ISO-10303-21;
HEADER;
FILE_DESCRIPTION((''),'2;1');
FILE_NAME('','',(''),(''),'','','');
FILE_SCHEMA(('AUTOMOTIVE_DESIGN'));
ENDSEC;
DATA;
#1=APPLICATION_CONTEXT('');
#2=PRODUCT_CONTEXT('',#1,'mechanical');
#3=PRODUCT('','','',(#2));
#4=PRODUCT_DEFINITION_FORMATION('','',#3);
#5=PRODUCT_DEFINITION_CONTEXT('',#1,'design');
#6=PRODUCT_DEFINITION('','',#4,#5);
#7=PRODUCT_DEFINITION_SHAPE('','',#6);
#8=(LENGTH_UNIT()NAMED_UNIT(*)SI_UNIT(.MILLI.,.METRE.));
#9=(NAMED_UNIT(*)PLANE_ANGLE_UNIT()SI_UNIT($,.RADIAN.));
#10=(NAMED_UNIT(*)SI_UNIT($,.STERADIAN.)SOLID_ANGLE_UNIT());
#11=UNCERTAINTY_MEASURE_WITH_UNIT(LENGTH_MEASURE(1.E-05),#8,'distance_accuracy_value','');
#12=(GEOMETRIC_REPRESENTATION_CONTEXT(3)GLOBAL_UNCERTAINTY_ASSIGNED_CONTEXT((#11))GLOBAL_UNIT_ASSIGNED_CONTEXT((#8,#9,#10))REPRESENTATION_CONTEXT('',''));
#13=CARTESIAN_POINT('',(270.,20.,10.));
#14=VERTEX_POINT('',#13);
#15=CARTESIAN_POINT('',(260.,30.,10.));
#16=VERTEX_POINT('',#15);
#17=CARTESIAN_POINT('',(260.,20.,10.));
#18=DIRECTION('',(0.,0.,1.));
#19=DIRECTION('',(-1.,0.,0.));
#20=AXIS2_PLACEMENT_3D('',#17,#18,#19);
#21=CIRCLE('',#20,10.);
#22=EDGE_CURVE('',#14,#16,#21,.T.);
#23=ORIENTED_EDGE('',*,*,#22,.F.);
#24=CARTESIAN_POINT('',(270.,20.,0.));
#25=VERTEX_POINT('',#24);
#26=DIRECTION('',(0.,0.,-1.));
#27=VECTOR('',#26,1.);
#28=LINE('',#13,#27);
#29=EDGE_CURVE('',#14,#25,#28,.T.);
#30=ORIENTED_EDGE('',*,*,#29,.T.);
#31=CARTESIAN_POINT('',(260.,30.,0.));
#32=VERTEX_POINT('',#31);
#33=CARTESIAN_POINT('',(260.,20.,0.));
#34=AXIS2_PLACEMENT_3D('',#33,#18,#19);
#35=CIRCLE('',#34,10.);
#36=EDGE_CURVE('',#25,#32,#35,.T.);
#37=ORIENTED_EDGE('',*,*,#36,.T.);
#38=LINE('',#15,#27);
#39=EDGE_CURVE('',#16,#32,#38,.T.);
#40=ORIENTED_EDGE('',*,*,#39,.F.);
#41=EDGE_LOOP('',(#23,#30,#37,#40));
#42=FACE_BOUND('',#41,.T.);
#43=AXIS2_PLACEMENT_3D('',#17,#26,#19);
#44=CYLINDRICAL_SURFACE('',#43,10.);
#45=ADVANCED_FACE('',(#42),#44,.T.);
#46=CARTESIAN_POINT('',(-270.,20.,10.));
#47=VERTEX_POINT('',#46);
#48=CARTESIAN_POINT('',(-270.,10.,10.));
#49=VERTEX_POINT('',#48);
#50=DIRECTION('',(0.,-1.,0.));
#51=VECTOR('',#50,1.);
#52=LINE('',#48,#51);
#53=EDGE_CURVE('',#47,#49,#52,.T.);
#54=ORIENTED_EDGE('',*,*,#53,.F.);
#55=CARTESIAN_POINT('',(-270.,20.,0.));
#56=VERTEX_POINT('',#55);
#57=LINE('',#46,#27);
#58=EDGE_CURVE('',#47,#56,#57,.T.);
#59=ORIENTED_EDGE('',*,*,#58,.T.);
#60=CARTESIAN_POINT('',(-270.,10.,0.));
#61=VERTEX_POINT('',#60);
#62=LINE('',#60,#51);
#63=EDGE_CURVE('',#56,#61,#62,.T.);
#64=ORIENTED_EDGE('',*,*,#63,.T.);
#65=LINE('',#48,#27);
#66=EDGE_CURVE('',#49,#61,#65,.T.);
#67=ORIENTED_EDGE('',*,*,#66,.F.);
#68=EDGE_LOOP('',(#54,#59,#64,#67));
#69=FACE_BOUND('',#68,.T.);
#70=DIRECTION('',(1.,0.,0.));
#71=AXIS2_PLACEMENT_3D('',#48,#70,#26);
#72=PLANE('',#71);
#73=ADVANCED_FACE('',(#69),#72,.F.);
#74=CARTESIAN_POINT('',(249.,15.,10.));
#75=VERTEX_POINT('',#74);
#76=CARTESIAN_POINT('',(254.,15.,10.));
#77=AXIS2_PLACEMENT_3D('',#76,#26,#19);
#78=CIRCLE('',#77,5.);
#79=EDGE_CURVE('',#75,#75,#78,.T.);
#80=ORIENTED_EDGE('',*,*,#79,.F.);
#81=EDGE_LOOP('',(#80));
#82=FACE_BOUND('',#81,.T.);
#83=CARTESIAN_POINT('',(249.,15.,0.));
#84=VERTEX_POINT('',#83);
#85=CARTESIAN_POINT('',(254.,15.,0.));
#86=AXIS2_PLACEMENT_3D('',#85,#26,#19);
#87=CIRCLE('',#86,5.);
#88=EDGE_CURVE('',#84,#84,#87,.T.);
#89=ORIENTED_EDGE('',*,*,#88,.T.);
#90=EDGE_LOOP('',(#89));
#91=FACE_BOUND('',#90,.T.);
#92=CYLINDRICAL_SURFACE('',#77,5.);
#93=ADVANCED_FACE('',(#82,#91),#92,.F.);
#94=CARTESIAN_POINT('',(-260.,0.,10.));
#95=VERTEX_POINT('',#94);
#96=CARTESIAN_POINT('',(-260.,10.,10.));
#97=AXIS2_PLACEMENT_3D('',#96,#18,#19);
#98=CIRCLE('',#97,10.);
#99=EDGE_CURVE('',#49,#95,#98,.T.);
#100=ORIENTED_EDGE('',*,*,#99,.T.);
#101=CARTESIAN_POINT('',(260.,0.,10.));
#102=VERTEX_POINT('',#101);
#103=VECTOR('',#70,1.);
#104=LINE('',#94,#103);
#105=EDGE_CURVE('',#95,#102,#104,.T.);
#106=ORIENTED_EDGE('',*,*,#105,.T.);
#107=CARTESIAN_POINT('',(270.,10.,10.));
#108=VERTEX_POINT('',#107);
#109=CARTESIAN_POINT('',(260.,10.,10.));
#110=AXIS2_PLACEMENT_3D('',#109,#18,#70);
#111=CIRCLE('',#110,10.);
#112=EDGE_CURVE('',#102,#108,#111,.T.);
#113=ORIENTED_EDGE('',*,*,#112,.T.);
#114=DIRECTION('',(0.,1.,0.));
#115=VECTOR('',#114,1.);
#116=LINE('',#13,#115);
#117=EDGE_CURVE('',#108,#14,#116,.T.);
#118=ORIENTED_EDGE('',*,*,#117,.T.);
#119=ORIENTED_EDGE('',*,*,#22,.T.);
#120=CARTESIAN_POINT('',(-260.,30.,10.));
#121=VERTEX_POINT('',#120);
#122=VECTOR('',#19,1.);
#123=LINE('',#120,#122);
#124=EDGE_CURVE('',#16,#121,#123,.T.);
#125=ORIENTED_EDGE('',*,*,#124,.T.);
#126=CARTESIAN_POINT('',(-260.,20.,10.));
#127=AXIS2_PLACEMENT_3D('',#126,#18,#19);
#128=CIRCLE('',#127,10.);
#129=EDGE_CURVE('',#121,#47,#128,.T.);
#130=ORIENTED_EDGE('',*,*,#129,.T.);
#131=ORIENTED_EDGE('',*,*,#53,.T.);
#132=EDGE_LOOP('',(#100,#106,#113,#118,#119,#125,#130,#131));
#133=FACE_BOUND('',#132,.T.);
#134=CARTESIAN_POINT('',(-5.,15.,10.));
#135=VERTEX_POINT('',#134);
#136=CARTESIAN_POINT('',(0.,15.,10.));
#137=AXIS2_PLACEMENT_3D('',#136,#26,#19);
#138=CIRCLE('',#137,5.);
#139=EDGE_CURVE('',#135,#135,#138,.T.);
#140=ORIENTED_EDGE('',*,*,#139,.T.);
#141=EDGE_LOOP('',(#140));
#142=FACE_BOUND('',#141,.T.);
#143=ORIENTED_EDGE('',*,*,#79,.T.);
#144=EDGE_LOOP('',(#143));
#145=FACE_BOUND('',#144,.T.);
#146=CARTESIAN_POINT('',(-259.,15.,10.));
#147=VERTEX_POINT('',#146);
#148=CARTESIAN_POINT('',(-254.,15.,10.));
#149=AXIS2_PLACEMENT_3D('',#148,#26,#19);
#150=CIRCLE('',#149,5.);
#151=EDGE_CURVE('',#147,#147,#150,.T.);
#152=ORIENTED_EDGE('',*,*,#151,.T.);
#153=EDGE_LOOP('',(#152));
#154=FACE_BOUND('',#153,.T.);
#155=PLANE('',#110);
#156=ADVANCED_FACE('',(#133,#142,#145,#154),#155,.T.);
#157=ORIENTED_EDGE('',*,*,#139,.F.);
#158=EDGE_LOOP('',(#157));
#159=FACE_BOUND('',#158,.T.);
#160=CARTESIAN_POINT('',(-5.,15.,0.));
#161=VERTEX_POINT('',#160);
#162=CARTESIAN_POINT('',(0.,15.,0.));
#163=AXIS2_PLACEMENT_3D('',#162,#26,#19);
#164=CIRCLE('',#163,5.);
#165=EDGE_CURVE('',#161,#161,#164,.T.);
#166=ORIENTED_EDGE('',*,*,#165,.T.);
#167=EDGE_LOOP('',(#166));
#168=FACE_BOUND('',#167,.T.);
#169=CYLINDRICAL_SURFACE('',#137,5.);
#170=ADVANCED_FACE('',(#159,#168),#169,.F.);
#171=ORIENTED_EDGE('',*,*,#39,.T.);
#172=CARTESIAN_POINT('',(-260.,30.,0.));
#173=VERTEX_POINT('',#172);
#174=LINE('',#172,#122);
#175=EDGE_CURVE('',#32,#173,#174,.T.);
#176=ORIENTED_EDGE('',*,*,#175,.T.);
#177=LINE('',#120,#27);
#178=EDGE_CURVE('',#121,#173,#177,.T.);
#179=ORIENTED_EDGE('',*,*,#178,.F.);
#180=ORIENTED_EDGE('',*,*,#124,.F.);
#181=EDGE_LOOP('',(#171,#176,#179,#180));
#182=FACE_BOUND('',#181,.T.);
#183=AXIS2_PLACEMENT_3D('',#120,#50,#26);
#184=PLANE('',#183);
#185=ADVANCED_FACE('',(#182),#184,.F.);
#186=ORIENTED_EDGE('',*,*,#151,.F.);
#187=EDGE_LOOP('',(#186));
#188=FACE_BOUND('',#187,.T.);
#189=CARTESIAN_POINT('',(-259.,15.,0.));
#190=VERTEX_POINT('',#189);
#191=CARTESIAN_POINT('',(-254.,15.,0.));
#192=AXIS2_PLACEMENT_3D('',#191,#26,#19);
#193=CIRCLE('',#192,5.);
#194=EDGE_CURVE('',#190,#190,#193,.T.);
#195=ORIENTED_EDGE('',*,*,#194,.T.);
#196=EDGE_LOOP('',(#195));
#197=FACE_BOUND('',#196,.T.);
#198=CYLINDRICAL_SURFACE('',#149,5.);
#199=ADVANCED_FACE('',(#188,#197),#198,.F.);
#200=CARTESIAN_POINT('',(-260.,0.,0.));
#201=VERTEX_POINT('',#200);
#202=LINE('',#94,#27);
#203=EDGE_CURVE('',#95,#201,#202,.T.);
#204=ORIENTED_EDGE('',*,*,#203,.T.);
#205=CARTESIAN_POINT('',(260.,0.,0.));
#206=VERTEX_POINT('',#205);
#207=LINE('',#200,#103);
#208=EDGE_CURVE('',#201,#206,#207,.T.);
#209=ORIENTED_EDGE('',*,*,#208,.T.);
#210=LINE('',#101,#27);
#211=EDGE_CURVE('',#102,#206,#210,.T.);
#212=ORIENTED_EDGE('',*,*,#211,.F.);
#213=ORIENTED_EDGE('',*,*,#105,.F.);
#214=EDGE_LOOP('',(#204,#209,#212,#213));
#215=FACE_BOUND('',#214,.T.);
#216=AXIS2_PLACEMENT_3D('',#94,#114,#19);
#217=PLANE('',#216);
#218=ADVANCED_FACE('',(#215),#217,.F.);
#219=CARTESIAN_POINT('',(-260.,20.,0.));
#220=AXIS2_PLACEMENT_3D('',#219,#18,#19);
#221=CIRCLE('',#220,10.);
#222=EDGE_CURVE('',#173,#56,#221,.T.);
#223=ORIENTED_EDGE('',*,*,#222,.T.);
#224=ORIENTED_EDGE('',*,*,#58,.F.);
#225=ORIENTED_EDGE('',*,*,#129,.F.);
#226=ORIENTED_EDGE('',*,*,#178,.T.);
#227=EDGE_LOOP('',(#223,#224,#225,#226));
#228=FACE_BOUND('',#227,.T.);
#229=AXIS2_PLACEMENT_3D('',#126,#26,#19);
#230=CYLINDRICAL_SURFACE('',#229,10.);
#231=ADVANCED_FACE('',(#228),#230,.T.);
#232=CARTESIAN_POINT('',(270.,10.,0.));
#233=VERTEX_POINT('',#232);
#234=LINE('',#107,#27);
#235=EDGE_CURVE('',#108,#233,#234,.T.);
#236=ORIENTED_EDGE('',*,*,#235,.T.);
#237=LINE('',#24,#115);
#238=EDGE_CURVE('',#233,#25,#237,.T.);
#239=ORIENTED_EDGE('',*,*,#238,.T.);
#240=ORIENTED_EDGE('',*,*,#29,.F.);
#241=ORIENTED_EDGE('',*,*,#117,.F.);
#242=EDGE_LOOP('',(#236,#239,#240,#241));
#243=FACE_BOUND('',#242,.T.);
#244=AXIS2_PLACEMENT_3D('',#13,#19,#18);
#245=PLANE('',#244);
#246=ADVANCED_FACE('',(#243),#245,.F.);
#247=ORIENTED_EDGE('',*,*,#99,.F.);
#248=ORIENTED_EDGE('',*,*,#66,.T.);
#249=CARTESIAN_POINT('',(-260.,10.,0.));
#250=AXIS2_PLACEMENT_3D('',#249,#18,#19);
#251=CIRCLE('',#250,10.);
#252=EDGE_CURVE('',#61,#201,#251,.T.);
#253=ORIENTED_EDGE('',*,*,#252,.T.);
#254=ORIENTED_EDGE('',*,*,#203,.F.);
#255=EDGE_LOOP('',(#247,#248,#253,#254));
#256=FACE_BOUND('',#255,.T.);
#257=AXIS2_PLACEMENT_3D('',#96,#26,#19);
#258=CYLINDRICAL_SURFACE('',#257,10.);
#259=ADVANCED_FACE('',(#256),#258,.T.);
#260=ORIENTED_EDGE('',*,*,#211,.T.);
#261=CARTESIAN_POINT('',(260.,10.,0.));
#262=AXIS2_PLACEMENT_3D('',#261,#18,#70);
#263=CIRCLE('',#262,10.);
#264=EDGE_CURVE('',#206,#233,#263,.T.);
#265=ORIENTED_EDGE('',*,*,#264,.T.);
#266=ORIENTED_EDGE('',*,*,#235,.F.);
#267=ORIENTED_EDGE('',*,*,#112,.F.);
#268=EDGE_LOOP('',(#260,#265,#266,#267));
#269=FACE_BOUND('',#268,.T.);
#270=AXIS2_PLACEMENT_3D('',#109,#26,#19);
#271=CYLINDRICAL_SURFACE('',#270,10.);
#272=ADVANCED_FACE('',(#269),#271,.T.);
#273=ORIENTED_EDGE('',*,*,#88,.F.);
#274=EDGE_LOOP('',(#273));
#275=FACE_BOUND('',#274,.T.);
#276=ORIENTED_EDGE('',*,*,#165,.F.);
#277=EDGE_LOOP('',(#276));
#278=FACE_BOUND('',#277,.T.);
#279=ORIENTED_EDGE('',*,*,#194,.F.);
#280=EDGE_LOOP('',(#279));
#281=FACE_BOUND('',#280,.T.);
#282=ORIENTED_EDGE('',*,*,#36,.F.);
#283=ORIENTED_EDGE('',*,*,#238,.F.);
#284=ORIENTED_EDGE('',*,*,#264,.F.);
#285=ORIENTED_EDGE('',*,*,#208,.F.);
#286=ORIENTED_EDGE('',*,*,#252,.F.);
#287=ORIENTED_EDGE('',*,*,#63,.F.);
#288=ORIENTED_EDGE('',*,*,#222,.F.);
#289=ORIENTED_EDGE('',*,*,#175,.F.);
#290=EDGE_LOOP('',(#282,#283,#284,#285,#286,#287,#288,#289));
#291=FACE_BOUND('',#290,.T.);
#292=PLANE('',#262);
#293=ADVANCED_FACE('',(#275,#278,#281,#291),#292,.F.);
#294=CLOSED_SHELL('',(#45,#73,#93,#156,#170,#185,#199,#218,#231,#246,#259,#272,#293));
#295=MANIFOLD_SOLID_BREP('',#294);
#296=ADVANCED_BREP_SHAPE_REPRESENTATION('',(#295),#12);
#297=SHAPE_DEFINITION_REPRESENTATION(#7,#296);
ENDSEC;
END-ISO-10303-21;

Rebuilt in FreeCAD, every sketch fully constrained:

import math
import FreeCAD as App
import Part
import Sketcher
Q = App.Units.Quantity

doc = App.newDocument("Part")
body = doc.addObject("PartDesign::Body", "Body")

# Sketch on XY plane
sketch1 = body.newObject("Sketcher::SketchObject", "Sketch")
sketch1.AttachmentSupport = (doc.getObject("XY_Plane"), [""])
sketch1.MapMode = "FlatFace"
sketch1.addGeometry([
    Part.LineSegment(App.Vector(-260, 0, 0), App.Vector(260, 0, 0)),  # 0
    Part.ArcOfCircle(Part.Circle(App.Vector(260, 10, 0), App.Vector(0, 0, 1), 10), math.radians(-90), math.radians(0)),  # 1
    Part.LineSegment(App.Vector(270, 10, 0), App.Vector(270, 20, 0)),  # 2
    Part.ArcOfCircle(Part.Circle(App.Vector(260, 20, 0), App.Vector(0, 0, 1), 10), math.radians(0), math.radians(90)),  # 3
    Part.LineSegment(App.Vector(260, 30, 0), App.Vector(-260, 30, 0)),  # 4
    Part.ArcOfCircle(Part.Circle(App.Vector(-260, 20, 0), App.Vector(0, 0, 1), 10), math.radians(90), math.radians(180)),  # 5
    Part.LineSegment(App.Vector(-270, 20, 0), App.Vector(-270, 10, 0)),  # 6
    Part.ArcOfCircle(Part.Circle(App.Vector(-260, 10, 0), App.Vector(0, 0, 1), 10), math.radians(180), math.radians(270)),  # 7
], False)
sketch1.addConstraint([
    Sketcher.Constraint("Tangent", 0, 2, 1, 1),
    Sketcher.Constraint("Tangent", 1, 2, 2, 1),
    Sketcher.Constraint("Tangent", 2, 2, 3, 1),
    Sketcher.Constraint("Tangent", 3, 2, 4, 1),
    Sketcher.Constraint("Tangent", 4, 2, 5, 1),
    Sketcher.Constraint("Tangent", 5, 2, 6, 1),
    Sketcher.Constraint("Tangent", 6, 2, 7, 1),
    Sketcher.Constraint("Tangent", 7, 2, 0, 1),
    Sketcher.Constraint("Horizontal", 0),
    Sketcher.Constraint("Vertical", 2),
    Sketcher.Constraint("Horizontal", 4),
    Sketcher.Constraint("Vertical", 6),
    Sketcher.Constraint("Equal", 1, 3),
    Sketcher.Constraint("Equal", 3, 5),
    Sketcher.Constraint("Equal", 5, 7),
    Sketcher.Constraint("Symmetric", 0, 2, 7, 2, -1, 1),
    Sketcher.Constraint("Radius", 1, Q("10 mm")),
    Sketcher.Constraint("DistanceX", 0, 1, 0, 2, Q("520 mm")),
    Sketcher.Constraint("DistanceY", 2, 1, 2, 2, Q("10 mm")),
])
pad1 = body.newObject("PartDesign::Pad", "Pad")
pad1.Profile = sketch1
pad1.Length = 10

# Sketch on XY plane
sketch2 = body.newObject("Sketcher::SketchObject", "Sketch001")
sketch2.AttachmentSupport = (doc.getObject("XY_Plane"), [""])
sketch2.MapMode = "FlatFace"
sketch2.addGeometry([
    Part.Circle(App.Vector(-254, 15, 0), App.Vector(0, 0, 1), 5),
    Part.Circle(App.Vector(254, 15, 0), App.Vector(0, 0, 1), 5),
], False)
sketch2.addConstraint([
    Sketcher.Constraint("Equal", 0, 1),
    Sketcher.Constraint("Symmetric", 0, 3, 1, 3, -2),
    Sketcher.Constraint("Diameter", 0, Q("10 mm")),
    Sketcher.Constraint("DistanceX", 0, 3, -1, 1, Q("254 mm")),
    Sketcher.Constraint("DistanceY", -1, 1, 0, 3, Q("15 mm")),
])
pocket1 = body.newObject("PartDesign::Pocket", "Pocket")
pocket1.Profile = sketch2
pocket1.Type = "ThroughAll"
pocket1.Reversed = True

# Sketch on XY plane
sketch3 = body.newObject("Sketcher::SketchObject", "Sketch002")
sketch3.AttachmentSupport = (doc.getObject("XY_Plane"), [""])
sketch3.MapMode = "FlatFace"
sketch3.addGeometry(Part.Circle(App.Vector(0, 15, 0), App.Vector(0, 0, 1), 5), False)
sketch3.addConstraint([
    Sketcher.Constraint("PointOnObject", 0, 3, -2),
    Sketcher.Constraint("Diameter", 0, Q("10 mm")),
    Sketcher.Constraint("DistanceY", -1, 1, 0, 3, Q("15 mm")),
])
pocket2 = body.newObject("PartDesign::Pocket", "Pocket001")
pocket2.Profile = sketch3
pocket2.Type = "ThroughAll"
pocket2.Reversed = True

doc.recompute()
